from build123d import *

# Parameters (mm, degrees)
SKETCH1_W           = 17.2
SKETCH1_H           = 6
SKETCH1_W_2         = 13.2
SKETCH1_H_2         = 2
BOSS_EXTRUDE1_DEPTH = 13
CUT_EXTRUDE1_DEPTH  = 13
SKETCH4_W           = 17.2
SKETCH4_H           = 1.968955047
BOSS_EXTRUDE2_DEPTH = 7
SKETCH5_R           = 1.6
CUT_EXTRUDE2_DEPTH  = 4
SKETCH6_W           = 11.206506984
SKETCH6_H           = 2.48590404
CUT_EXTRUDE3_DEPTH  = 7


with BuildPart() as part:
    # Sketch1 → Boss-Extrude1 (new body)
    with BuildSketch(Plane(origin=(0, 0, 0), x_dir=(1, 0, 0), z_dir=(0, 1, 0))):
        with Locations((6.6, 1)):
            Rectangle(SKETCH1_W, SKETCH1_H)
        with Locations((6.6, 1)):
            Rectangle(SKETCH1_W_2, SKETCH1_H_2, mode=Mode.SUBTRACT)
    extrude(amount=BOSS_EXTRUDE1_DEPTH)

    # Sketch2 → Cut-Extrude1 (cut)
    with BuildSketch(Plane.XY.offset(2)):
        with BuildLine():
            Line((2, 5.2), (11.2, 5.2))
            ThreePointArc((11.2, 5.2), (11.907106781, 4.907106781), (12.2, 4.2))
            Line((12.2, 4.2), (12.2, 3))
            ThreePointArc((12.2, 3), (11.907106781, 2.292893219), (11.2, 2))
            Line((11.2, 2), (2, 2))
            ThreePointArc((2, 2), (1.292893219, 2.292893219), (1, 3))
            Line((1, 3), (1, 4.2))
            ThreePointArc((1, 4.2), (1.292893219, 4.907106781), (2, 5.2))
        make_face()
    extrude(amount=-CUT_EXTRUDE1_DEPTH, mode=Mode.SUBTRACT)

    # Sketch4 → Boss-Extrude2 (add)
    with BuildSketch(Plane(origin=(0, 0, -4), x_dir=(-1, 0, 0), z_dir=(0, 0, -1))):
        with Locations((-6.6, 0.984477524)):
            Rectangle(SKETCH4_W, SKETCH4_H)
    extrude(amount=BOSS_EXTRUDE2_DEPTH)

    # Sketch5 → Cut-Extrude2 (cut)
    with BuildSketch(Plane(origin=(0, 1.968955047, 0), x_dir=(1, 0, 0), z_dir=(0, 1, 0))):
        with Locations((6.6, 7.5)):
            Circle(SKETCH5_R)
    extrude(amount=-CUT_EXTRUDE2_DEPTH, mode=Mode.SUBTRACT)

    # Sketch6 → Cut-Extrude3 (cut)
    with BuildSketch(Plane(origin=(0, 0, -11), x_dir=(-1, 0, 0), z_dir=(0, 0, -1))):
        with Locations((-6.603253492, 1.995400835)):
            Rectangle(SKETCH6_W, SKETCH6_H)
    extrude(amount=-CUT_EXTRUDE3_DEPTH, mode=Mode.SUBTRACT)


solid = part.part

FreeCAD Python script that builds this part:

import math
import FreeCAD as App
import Part
import Sketcher

V = App.Vector
Q = App.Units.Quantity


def add_polygon(sketch, points):
    """Adds a closed chain of lines whose ends are joined by coincident constraints."""
    first, n = sketch.GeometryCount, len(points)
    for a, b in zip(points, points[1:] + points[:1]):
        sketch.addGeometry(Part.LineSegment(App.Vector(*a, 0), App.Vector(*b, 0)), False)
    for i in range(n):
        sketch.addConstraint(Sketcher.Constraint("Coincident", first + i, 2, first + (i + 1) % n, 1))

doc = App.newDocument("Part")
body = doc.addObject("PartDesign::Body", "Body")

sketch1 = body.newObject("Sketcher::SketchObject", "Sketch")
sketch1.AttachmentSupport = (doc.getObject("XZ_Plane"), [""])
sketch1.MapMode = "FlatFace"
add_polygon(sketch1, [(-2, -4), (-2, 2), (15.2, 2), (15.2, -4)])
add_polygon(sketch1, [(13.2, 0), (0, 0), (0, -2), (13.2, -2)])
sketch1.addConstraint([
    Sketcher.Constraint("Vertical", 0),
    Sketcher.Constraint("Horizontal", 1),
    Sketcher.Constraint("Vertical", 2),
    Sketcher.Constraint("Horizontal", 3),
    Sketcher.Constraint("Horizontal", 4),
    Sketcher.Constraint("Vertical", 5),
    Sketcher.Constraint("Horizontal", 6),
    Sketcher.Constraint("Vertical", 7),
    Sketcher.Constraint("Coincident", 4, 2, -1, 1),
    Sketcher.Constraint("DistanceY", 0, 1, 0, 2, Q("6 mm")),
    Sketcher.Constraint("DistanceY", 5, 2, 5, 1, Q("2 mm")),
    Sketcher.Constraint("DistanceX", 1, 1, 1, 2, Q("17.2 mm")),
    Sketcher.Constraint("DistanceX", 4, 2, 4, 1, Q("13.2 mm")),
    Sketcher.Constraint("DistanceX", 0, 2, -1, 1, Q("2 mm")),
    Sketcher.Constraint("DistanceY", -1, 1, 0, 2, Q("2 mm")),
])
pad1 = body.newObject("PartDesign::Pad", "Pad")
pad1.Profile = sketch1
pad1.Length = 13
pad1.Reversed = True

sketch2 = body.newObject("Sketcher::SketchObject", "Sketch001")
sketch2.AttachmentSupport = (doc.getObject("XY_Plane"), [""])
sketch2.MapMode = "FlatFace"
sketch2.AttachmentOffset = App.Placement(V(0, 0, 2), App.Rotation())
sketch2.addGeometry([
    Part.LineSegment(V(11.2, 5.2, 0), V(2, 5.2, 0)),
    Part.ArcOfCircle(Part.Circle(V(2, 4.2, 0), V(0, 0, 1), 1), math.radians(90), math.radians(180)),
    Part.LineSegment(V(1, 4.2, 0), V(1, 3, 0)),
    Part.ArcOfCircle(Part.Circle(V(2, 3, 0), V(0, 0, 1), 1), math.radians(-180), math.radians(-90)),
    Part.LineSegment(V(2, 2, 0), V(11.2, 2, 0)),
    Part.ArcOfCircle(Part.Circle(V(11.2, 3, 0), V(0, 0, 1), 1), math.radians(-90), math.radians(0)),
    Part.LineSegment(V(12.2, 3, 0), V(12.2, 4.2, 0)),
    Part.ArcOfCircle(Part.Circle(V(11.2, 4.2, 0), V(0, 0, 1), 1), math.radians(0), math.radians(90)),
], False)
sketch2.addConstraint([
    Sketcher.Constraint("Tangent", 0, 2, 1, 1),
    Sketcher.Constraint("Tangent", 1, 2, 2, 1),
    Sketcher.Constraint("Tangent", 2, 2, 3, 1),
    Sketcher.Constraint("Tangent", 3, 2, 4, 1),
    Sketcher.Constraint("Tangent", 4, 2, 5, 1),
    Sketcher.Constraint("Tangent", 5, 2, 6, 1),
    Sketcher.Constraint("Tangent", 6, 2, 7, 1),
    Sketcher.Constraint("Tangent", 7, 2, 0, 1),
    Sketcher.Constraint("Horizontal", 0),
    Sketcher.Constraint("Vertical", 2),
    Sketcher.Constraint("Horizontal", 4),
    Sketcher.Constraint("Vertical", 6),
    Sketcher.Constraint("Equal", 1, 3),
    Sketcher.Constraint("Equal", 3, 5),
    Sketcher.Constraint("Equal", 5, 7),
    Sketcher.Constraint("Radius", 1, Q("1 mm")),
    Sketcher.Constraint("DistanceX", 0, 2, 0, 1, Q("9.2 mm")),
    Sketcher.Constraint("DistanceY", 2, 2, 2, 1, Q("1.2 mm")),
    Sketcher.Constraint("DistanceX", -1, 1, 1, 3, Q("2 mm")),
    Sketcher.Constraint("DistanceY", -1, 1, 3, 3, Q("3 mm")),
])
pocket1 = body.newObject("PartDesign::Pocket", "Pocket")
pocket1.Profile = sketch2
pocket1.Length = 13

sketch3 = body.newObject("Sketcher::SketchObject", "Sketch002")
sketch3.AttachmentSupport = (doc.getObject("XY_Plane"), [""])
sketch3.MapMode = "FlatFace"
sketch3.AttachmentOffset = App.Placement(V(0, 0, -4), App.Rotation())
add_polygon(sketch3, [(15.2, 2), (15.2, 0), (-2, 0), (-2, 2)])
sketch3.addConstraint([
    Sketcher.Constraint("Vertical", 0),
    Sketcher.Constraint("Horizontal", 1),
    Sketcher.Constraint("Vertical", 2),
    Sketcher.Constraint("Horizontal", 3),
    Sketcher.Constraint("PointOnObject", 0, 2, -1),
    Sketcher.Constraint("DistanceX", 1, 2, 1, 1, Q("17.2 mm")),
    Sketcher.Constraint("DistanceX", 1, 2, -1, 1, Q("2 mm")),
    Sketcher.Constraint("DistanceY", 0, 2, 0, 1, Q("1.968955 mm")),
])
pad2 = body.newObject("PartDesign::Pad", "Pad001")
pad2.Profile = sketch3
pad2.Length = 7
pad2.Reversed = True

sketch4 = body.newObject("Sketcher::SketchObject", "Sketch003")
sketch4.AttachmentSupport = (doc.getObject("XZ_Plane"), [""])
sketch4.MapMode = "FlatFace"
sketch4.AttachmentOffset = App.Placement(V(0, 0, -1.968955), App.Rotation())
sketch4.addGeometry(Part.Circle(V(6.6, -7.5, 0), V(0, 0, 1), 1.6), False)
sketch4.addConstraint([
    Sketcher.Constraint("Diameter", 0, Q("3.2 mm")),
    Sketcher.Constraint("DistanceX", -1, 1, 0, 3, Q("6.6 mm")),
    Sketcher.Constraint("DistanceY", 0, 3, -1, 1, Q("7.5 mm")),
])
pocket2 = body.newObject("PartDesign::Pocket", "Pocket001")
pocket2.Profile = sketch4
pocket2.Length = 4
pocket2.Reversed = True

sketch5 = body.newObject("Sketcher::SketchObject", "Sketch004")
sketch5.AttachmentSupport = (doc.getObject("XY_Plane"), [""])
sketch5.MapMode = "FlatFace"
sketch5.AttachmentOffset = App.Placement(V(0, 0, -11), App.Rotation())
add_polygon(sketch5, [(12.2, 3.2), (12.2, 0.8), (1, 0.8), (1, 3.2)])
sketch5.addConstraint([
    Sketcher.Constraint("Vertical", 0),
    Sketcher.Constraint("Horizontal", 1),
    Sketcher.Constraint("Vertical", 2),
    Sketcher.Constraint("Horizontal", 3),
    Sketcher.Constraint("DistanceX", -1, 1, 1, 2, Q("1 mm")),
    Sketcher.Constraint("DistanceX", 1, 2, 1, 1, Q("11.206507 mm")),
    Sketcher.Constraint("DistanceY", 0, 2, 0, 1, Q("2.485904 mm")),
    Sketcher.Constraint("DistanceY", -1, 1, 0, 2, Q("0.752449 mm")),
])
pocket3 = body.newObject("PartDesign::Pocket", "Pocket002")
pocket3.Profile = sketch5
pocket3.Length = 7
pocket3.Reversed = True

doc.recompute()
